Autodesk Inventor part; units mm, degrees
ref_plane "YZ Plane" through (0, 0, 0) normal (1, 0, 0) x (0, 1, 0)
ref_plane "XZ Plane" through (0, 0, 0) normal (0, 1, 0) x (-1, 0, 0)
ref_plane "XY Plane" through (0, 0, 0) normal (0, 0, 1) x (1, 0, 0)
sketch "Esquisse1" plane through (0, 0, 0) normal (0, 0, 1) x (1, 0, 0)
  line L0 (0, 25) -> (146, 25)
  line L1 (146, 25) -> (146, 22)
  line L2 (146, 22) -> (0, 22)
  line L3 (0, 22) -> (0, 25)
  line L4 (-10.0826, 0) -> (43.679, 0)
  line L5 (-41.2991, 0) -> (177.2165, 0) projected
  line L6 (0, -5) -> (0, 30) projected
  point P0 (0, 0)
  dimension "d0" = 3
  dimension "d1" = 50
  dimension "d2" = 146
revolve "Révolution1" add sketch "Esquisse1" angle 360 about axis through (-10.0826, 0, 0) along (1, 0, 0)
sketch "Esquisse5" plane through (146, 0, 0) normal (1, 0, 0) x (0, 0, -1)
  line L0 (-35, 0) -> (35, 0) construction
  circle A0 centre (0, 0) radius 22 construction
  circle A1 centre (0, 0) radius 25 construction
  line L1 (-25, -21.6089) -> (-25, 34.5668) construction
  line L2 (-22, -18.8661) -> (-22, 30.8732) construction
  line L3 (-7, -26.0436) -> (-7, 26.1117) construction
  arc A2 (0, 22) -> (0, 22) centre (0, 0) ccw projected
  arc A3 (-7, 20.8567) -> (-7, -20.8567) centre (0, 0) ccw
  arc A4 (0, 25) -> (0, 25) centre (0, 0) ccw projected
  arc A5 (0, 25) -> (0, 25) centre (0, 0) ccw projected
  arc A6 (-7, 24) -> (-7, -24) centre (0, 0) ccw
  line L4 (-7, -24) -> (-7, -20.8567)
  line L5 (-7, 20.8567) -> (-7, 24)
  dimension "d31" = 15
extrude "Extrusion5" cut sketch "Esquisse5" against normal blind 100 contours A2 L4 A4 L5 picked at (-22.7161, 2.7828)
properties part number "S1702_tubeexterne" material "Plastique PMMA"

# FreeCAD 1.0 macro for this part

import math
import FreeCAD as App
import Part
import Sketcher

V = App.Vector
Q = App.Units.Quantity


def add_polygon(sketch, points):
    """Adds a closed chain of lines whose ends are joined by coincident constraints."""
    first, n = sketch.GeometryCount, len(points)
    for a, b in zip(points, points[1:] + points[:1]):
        sketch.addGeometry(Part.LineSegment(App.Vector(*a, 0), App.Vector(*b, 0)), False)
    for i in range(n):
        sketch.addConstraint(Sketcher.Constraint("Coincident", first + i, 2, first + (i + 1) % n, 1))

doc = App.newDocument("Part")
params = doc.addObject("Spreadsheet::Sheet", "Params")
for row, (alias, value) in enumerate([
    ("sketch1_width", "146 mm"),
    ("sketch1_height", "3 mm"),
    ("revolution_angle", "360 deg"),
    ("sketch2_radius", "22 mm"),
    ("sketch2_radius2", "25 mm"),
    ("pocket1_length", "100 mm"),
], start=1):
    params.set(f"A{row}", alias)
    params.set(f"B{row}", "=" + value)
    params.setAlias(f"B{row}", alias)

body = doc.addObject("PartDesign::Body", "Body")

sketch1 = body.newObject("Sketcher::SketchObject", "Sketch")
sketch1.AttachmentSupport = (doc.getObject("XY_Plane"), [""])
sketch1.MapMode = "FlatFace"
add_polygon(sketch1, [(146, 25), (0, 25), (0, 22), (146, 22)])
sketch1.addConstraint([
    Sketcher.Constraint("Horizontal", 0),
    Sketcher.Constraint("Vertical", 1),
    Sketcher.Constraint("Horizontal", 2),
    Sketcher.Constraint("Vertical", 3),
    Sketcher.Constraint("PointOnObject", 0, 2, -2),
    Sketcher.Constraint("DistanceX", 0, 2, 0, 1, Q("146 mm")),
    Sketcher.Constraint("DistanceY", 1, 2, 1, 1, Q("3 mm")),
    Sketcher.Constraint("DistanceY", -1, 1, 0, 2, Q("25 mm")),
])
sketch1.setExpression("Constraints[9]", "Params.sketch1_width")
sketch1.setExpression("Constraints[10]", "Params.sketch1_height")
revolution = body.newObject("PartDesign::Revolution", "Revolution")
revolution.Profile = sketch1
revolution.ReferenceAxis = (sketch1, ["H_Axis"])
revolution.setExpression("Angle", "Params.revolution_angle")

sketch2 = body.newObject("Sketcher::SketchObject", "Sketch001")
sketch2.AttachmentSupport = (doc.getObject("YZ_Plane"), [""])
sketch2.MapMode = "FlatFace"
sketch2.AttachmentOffset = App.Placement(V(0, 0, 146), App.Rotation())
sketch2.addGeometry([
    Part.ArcOfCircle(Part.Circle(V(0, 0, 0), V(0, 0, 1), 22), math.radians(18.552966), math.radians(161.447034)),
    Part.LineSegment(V(20.8567, 7, 0), V(24, 7, 0)),
    Part.ArcOfCircle(Part.Circle(V(0, 0, 0), V(0, 0, 1), 25), math.radians(16.260205), math.radians(163.739795)),
    Part.LineSegment(V(-24, 7, 0), V(-20.8567, 7, 0)),
], False)
sketch2.addConstraint([
    Sketcher.Constraint("Coincident", 0, 1, 1, 1),
    Sketcher.Constraint("Coincident", 1, 2, 2, 1),
    Sketcher.Constraint("Coincident", 2, 2, 3, 1),
    Sketcher.Constraint("Coincident", 3, 2, 0, 2),
    Sketcher.Constraint("Horizontal", 1),
    Sketcher.Constraint("Horizontal", 3),
    Sketcher.Constraint("Coincident", 0, 3, -1, 1),
    Sketcher.Constraint("Coincident", 2, 3, -1, 1),
    Sketcher.Constraint("Horizontal", 1, 2, 2, 2),
    Sketcher.Constraint("Radius", 0, Q("22 mm")),
    Sketcher.Constraint("Radius", 2, Q("25 mm")),
    Sketcher.Constraint("DistanceY", -1, 1, 0, 1, Q("7 mm")),
])
sketch2.setExpression("Constraints[9]", "Params.sketch2_radius")
sketch2.setExpression("Constraints[10]", "Params.sketch2_radius2")
pocket1 = body.newObject("PartDesign::Pocket", "Pocket")
pocket1.Profile = sketch2
pocket1.setExpression("Length", "Params.pocket1_length")

doc.recompute()
